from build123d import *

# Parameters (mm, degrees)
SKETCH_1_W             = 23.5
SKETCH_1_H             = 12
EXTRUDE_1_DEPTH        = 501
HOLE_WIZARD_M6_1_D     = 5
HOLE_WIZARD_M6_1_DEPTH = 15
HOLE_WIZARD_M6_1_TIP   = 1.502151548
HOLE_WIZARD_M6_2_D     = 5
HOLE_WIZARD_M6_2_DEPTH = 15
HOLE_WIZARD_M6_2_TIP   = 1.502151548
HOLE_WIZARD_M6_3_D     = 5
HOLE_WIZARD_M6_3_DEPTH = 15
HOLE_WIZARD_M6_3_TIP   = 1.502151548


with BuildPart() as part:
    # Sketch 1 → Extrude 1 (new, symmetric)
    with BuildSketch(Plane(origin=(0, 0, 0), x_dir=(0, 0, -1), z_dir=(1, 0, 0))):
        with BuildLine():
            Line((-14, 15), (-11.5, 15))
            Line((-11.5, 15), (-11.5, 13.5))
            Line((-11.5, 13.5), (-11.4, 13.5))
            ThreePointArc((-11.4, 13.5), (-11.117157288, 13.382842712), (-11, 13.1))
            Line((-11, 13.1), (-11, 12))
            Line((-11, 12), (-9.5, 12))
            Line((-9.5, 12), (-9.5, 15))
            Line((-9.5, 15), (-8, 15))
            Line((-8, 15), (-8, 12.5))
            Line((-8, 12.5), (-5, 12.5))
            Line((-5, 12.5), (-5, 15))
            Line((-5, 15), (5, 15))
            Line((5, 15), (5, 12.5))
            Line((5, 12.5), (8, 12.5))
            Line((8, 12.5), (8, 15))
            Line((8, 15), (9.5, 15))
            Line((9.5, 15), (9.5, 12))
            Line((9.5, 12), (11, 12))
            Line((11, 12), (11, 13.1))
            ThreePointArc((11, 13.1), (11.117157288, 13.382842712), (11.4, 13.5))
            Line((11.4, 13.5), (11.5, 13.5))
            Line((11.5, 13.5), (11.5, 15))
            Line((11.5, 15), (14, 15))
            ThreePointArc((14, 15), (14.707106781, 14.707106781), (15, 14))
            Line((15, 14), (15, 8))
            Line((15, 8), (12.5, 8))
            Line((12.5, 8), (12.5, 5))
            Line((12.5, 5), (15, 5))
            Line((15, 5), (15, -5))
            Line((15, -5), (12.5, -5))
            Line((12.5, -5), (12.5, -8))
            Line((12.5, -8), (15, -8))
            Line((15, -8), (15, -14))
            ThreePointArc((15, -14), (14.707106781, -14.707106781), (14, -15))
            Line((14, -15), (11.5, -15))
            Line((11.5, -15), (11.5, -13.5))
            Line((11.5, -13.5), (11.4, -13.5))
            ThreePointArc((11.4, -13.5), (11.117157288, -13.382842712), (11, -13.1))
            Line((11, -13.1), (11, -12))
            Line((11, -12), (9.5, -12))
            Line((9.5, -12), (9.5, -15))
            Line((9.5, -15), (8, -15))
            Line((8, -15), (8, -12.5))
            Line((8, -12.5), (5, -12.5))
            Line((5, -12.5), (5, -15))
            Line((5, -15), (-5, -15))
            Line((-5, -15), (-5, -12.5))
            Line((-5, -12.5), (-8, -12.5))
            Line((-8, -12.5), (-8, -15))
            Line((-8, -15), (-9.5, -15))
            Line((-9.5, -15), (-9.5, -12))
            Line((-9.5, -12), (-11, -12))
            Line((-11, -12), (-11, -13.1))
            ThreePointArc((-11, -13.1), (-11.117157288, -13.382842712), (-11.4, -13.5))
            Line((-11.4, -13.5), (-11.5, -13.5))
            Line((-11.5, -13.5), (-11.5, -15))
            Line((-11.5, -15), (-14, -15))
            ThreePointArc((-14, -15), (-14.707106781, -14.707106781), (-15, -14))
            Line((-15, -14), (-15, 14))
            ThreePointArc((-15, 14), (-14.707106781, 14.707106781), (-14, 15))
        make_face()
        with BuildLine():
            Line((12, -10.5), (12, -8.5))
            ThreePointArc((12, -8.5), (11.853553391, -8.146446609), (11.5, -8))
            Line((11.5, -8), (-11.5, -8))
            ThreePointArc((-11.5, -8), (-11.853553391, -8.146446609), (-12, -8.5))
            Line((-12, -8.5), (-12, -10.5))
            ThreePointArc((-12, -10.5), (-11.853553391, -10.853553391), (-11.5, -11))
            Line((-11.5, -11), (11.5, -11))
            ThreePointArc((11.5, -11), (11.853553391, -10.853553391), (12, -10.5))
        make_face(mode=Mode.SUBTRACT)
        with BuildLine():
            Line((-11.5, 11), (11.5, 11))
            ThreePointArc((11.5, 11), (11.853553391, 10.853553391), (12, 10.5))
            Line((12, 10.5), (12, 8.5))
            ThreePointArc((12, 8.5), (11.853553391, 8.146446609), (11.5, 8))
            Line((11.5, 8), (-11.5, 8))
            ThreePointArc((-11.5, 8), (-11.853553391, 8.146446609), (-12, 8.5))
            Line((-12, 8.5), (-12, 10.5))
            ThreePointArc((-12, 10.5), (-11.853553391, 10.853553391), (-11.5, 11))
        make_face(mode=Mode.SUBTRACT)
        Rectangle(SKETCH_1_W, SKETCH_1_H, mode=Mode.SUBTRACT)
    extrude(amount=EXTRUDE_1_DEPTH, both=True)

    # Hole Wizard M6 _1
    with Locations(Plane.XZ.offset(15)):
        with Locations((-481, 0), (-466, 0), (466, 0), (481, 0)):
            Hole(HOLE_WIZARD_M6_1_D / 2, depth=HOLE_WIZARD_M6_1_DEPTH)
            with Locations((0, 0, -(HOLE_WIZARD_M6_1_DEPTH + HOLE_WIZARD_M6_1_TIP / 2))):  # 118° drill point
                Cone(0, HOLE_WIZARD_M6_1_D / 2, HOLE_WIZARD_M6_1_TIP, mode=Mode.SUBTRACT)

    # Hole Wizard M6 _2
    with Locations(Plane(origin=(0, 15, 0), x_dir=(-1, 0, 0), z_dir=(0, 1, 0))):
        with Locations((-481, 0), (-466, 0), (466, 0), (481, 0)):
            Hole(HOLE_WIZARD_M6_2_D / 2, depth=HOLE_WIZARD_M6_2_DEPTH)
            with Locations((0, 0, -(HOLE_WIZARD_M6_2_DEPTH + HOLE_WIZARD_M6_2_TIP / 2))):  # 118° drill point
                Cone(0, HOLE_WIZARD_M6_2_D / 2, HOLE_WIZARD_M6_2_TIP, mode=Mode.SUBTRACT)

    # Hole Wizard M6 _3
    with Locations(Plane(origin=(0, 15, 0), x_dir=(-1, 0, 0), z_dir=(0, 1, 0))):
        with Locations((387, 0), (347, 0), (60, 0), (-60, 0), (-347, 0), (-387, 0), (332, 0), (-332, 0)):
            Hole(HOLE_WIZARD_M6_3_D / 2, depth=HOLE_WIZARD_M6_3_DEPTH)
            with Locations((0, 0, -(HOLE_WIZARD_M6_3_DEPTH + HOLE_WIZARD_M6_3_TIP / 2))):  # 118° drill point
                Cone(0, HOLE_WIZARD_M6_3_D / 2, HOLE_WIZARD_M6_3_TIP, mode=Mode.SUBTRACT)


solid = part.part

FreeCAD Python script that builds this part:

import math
import FreeCAD as App
import Part
import Sketcher

V = App.Vector
Q = App.Units.Quantity


def add_polygon(sketch, points):
    """Adds a closed chain of lines whose ends are joined by coincident constraints."""
    first, n = sketch.GeometryCount, len(points)
    for a, b in zip(points, points[1:] + points[:1]):
        sketch.addGeometry(Part.LineSegment(App.Vector(*a, 0), App.Vector(*b, 0)), False)
    for i in range(n):
        sketch.addConstraint(Sketcher.Constraint("Coincident", first + i, 2, first + (i + 1) % n, 1))

doc = App.newDocument("Part")
body = doc.addObject("PartDesign::Body", "Body")

# Sketch on YZ plane
sketch1 = body.newObject("Sketcher::SketchObject", "Sketch")
sketch1.AttachmentSupport = (doc.getObject("YZ_Plane"), [""])
sketch1.MapMode = "FlatFace"
sketch1.addGeometry(Part.LineSegment(V(15, 11.5, 0), V(15, 14, 0)), False)  # 0
sketch1.addGeometry(Part.ArcOfCircle(Part.Circle(V(14, 14, 0), V(0, 0, 1), 1), math.radians(0), math.radians(90)), False)  # 1
sketch1.addGeometry(Part.LineSegment(V(14, 15, 0), V(-14, 15, 0)), False)  # 2
sketch1.addGeometry(Part.ArcOfCircle(Part.Circle(V(-14, 14, 0), V(0, 0, 1), 1), math.radians(90), math.radians(180)), False)  # 3
sketch1.addGeometry(Part.LineSegment(V(-15, 14, 0), V(-15, 11.5, 0)), False)  # 4
sketch1.addGeometry(Part.LineSegment(V(-15, 11.5, 0), V(-13.5, 11.5, 0)), False)  # 5
sketch1.addGeometry(Part.LineSegment(V(-13.5, 11.5, 0), V(-13.5, 11.4, 0)), False)  # 6
sketch1.addGeometry(Part.ArcOfCircle(Part.Circle(V(-13.1, 11.4, 0), V(0, 0, 1), 0.4), math.radians(-180), math.radians(-90)), False)  # 7
sketch1.addGeometry(Part.LineSegment(V(-13.1, 11, 0), V(-12, 11, 0)), False)  # 8
sketch1.addGeometry(Part.LineSegment(V(-12, 11, 0), V(-12, 9.5, 0)), False)  # 9
sketch1.addGeometry(Part.LineSegment(V(-12, 9.5, 0), V(-15, 9.5, 0)), False)  # 10
sketch1.addGeometry(Part.LineSegment(V(-15, 9.5, 0), V(-15, 8, 0)), False)  # 11
sketch1.addGeometry(Part.LineSegment(V(-15, 8, 0), V(-12.5, 8, 0)), False)  # 12
sketch1.addGeometry(Part.LineSegment(V(-12.5, 8, 0), V(-12.5, 5, 0)), False)  # 13
sketch1.addGeometry(Part.LineSegment(V(-12.5, 5, 0), V(-15, 5, 0)), False)  # 14
sketch1.addGeometry(Part.LineSegment(V(-15, 5, 0), V(-15, -5, 0)), False)  # 15
sketch1.addGeometry(Part.LineSegment(V(-15, -5, 0), V(-12.5, -5, 0)), False)  # 16
sketch1.addGeometry(Part.LineSegment(V(-12.5, -5, 0), V(-12.5, -8, 0)), False)  # 17
sketch1.addGeometry(Part.LineSegment(V(-12.5, -8, 0), V(-15, -8, 0)), False)  # 18
sketch1.addGeometry(Part.LineSegment(V(-15, -8, 0), V(-15, -9.5, 0)), False)  # 19
sketch1.addGeometry(Part.LineSegment(V(-15, -9.5, 0), V(-12, -9.5, 0)), False)  # 20
sketch1.addGeometry(Part.LineSegment(V(-12, -9.5, 0), V(-12, -11, 0)), False)  # 21
sketch1.addGeometry(Part.LineSegment(V(-12, -11, 0), V(-13.1, -11, 0)), False)  # 22
sketch1.addGeometry(Part.ArcOfCircle(Part.Circle(V(-13.1, -11.4, 0), V(0, 0, 1), 0.4), math.radians(90), math.radians(180)), False)  # 23
sketch1.addGeometry(Part.LineSegment(V(-13.5, -11.4, 0), V(-13.5, -11.5, 0)), False)  # 24
sketch1.addGeometry(Part.LineSegment(V(-13.5, -11.5, 0), V(-15, -11.5, 0)), False)  # 25
sketch1.addGeometry(Part.LineSegment(V(-15, -11.5, 0), V(-15, -14, 0)), False)  # 26
sketch1.addGeometry(Part.ArcOfCircle(Part.Circle(V(-14, -14, 0), V(0, 0, 1), 1), math.radians(-180), math.radians(-90)), False)  # 27
sketch1.addGeometry(Part.LineSegment(V(-14, -15, 0), V(-8, -15, 0)), False)  # 28
sketch1.addGeometry(Part.LineSegment(V(-8, -15, 0), V(-8, -12.5, 0)), False)  # 29
sketch1.addGeometry(Part.LineSegment(V(-8, -12.5, 0), V(-5, -12.5, 0)), False)  # 30
sketch1.addGeometry(Part.LineSegment(V(-5, -12.5, 0), V(-5, -15, 0)), False)  # 31
sketch1.addGeometry(Part.LineSegment(V(-5, -15, 0), V(5, -15, 0)), False)  # 32
sketch1.addGeometry(Part.LineSegment(V(5, -15, 0), V(5, -12.5, 0)), False)  # 33
sketch1.addGeometry(Part.LineSegment(V(5, -12.5, 0), V(8, -12.5, 0)), False)  # 34
sketch1.addGeometry(Part.LineSegment(V(8, -12.5, 0), V(8, -15, 0)), False)  # 35
sketch1.addGeometry(Part.LineSegment(V(8, -15, 0), V(14, -15, 0)), False)  # 36
sketch1.addGeometry(Part.ArcOfCircle(Part.Circle(V(14, -14, 0), V(0, 0, 1), 1), math.radians(-90), math.radians(0)), False)  # 37
sketch1.addGeometry(Part.LineSegment(V(15, -14, 0), V(15, -11.5, 0)), False)  # 38
sketch1.addGeometry(Part.LineSegment(V(15, -11.5, 0), V(13.5, -11.5, 0)), False)  # 39
sketch1.addGeometry(Part.LineSegment(V(13.5, -11.5, 0), V(13.5, -11.4, 0)), False)  # 40
sketch1.addGeometry(Part.ArcOfCircle(Part.Circle(V(13.1, -11.4, 0), V(0, 0, 1), 0.4), math.radians(0), math.radians(90)), False)  # 41
sketch1.addGeometry(Part.LineSegment(V(13.1, -11, 0), V(12, -11, 0)), False)  # 42
sketch1.addGeometry(Part.LineSegment(V(12, -11, 0), V(12, -9.5, 0)), False)  # 43
sketch1.addGeometry(Part.LineSegment(V(12, -9.5, 0), V(15, -9.5, 0)), False)  # 44
sketch1.addGeometry(Part.LineSegment(V(15, -9.5, 0), V(15, -8, 0)), False)  # 45
sketch1.addGeometry(Part.LineSegment(V(15, -8, 0), V(12.5, -8, 0)), False)  # 46
sketch1.addGeometry(Part.LineSegment(V(12.5, -8, 0), V(12.5, -5, 0)), False)  # 47
sketch1.addGeometry(Part.LineSegment(V(12.5, -5, 0), V(15, -5, 0)), False)  # 48
sketch1.addGeometry(Part.LineSegment(V(15, -5, 0), V(15, 5, 0)), False)  # 49
sketch1.addGeometry(Part.LineSegment(V(15, 5, 0), V(12.5, 5, 0)), False)  # 50
sketch1.addGeometry(Part.LineSegment(V(12.5, 5, 0), V(12.5, 8, 0)), False)  # 51
sketch1.addGeometry(Part.LineSegment(V(12.5, 8, 0), V(15, 8, 0)), False)  # 52
sketch1.addGeometry(Part.LineSegment(V(15, 8, 0), V(15, 9.5, 0)), False)  # 53
sketch1.addGeometry(Part.LineSegment(V(15, 9.5, 0), V(12, 9.5, 0)), False)  # 54
sketch1.addGeometry(Part.LineSegment(V(12, 9.5, 0), V(12, 11, 0)), False)  # 55
sketch1.addGeometry(Part.LineSegment(V(12, 11, 0), V(13.1, 11, 0)), False)  # 56
sketch1.addGeometry(Part.ArcOfCircle(Part.Circle(V(13.1, 11.4, 0), V(0, 0, 1), 0.4), math.radians(-90), math.radians(0)), False)  # 57
sketch1.addGeometry(Part.LineSegment(V(13.5, 11.4, 0), V(13.5, 11.5, 0)), False)  # 58
sketch1.addGeometry(Part.LineSegment(V(13.5, 11.5, 0), V(15, 11.5, 0)), False)  # 59
sketch1.addGeometry(Part.ArcOfCircle(Part.Circle(V(-10.5, -11.5, 0), V(0, 0, 1), 0.5), math.radians(180), math.radians(270)), False)  # 60
sketch1.addGeometry(Part.LineSegment(V(-11, -11.5, 0), V(-11, 11.5, 0)), False)  # 61
sketch1.addGeometry(Part.ArcOfCircle(Part.Circle(V(-10.5, 11.5, 0), V(0, 0, 1), 0.5), math.radians(90), math.radians(180)), False)  # 62
sketch1.addGeometry(Part.LineSegment(V(-10.5, 12, 0), V(-8.5, 12, 0)), False)  # 63
sketch1.addGeometry(Part.ArcOfCircle(Part.Circle(V(-8.5, 11.5, 0), V(0, 0, 1), 0.5), math.radians(0), math.radians(90)), False)  # 64
sketch1.addGeometry(Part.LineSegment(V(-8, 11.5, 0), V(-8, -11.5, 0)), False)  # 65
sketch1.addGeometry(Part.ArcOfCircle(Part.Circle(V(-8.5, -11.5, 0), V(0, 0, 1), 0.5), math.radians(-90), math.radians(0)), False)  # 66
sketch1.addGeometry(Part.LineSegment(V(-8.5, -12, 0), V(-10.5, -12, 0)), False)  # 67
add_polygon(sketch1, [(-6, 11.75), (6, 11.75), (6, -11.75), (-6, -11.75)])  # lines 68-71
sketch1.addGeometry(Part.LineSegment(V(11, 11.5, 0), V(11, -11.5, 0)), False)  # 72
sketch1.addGeometry(Part.ArcOfCircle(Part.Circle(V(10.5, -11.5, 0), V(0, 0, 1), 0.5), math.radians(-90), math.radians(0)), False)  # 73
sketch1.addGeometry(Part.LineSegment(V(10.5, -12, 0), V(8.5, -12, 0)), False)  # 74
sketch1.addGeometry(Part.ArcOfCircle(Part.Circle(V(8.5, -11.5, 0), V(0, 0, 1), 0.5), math.radians(180), math.radians(270)), False)  # 75
sketch1.addGeometry(Part.LineSegment(V(8, -11.5, 0), V(8, 11.5, 0)), False)  # 76
sketch1.addGeometry(Part.ArcOfCircle(Part.Circle(V(8.5, 11.5, 0), V(0, 0, 1), 0.5), math.radians(90), math.radians(180)), False)  # 77
sketch1.addGeometry(Part.LineSegment(V(8.5, 12, 0), V(10.5, 12, 0)), False)  # 78
sketch1.addGeometry(Part.ArcOfCircle(Part.Circle(V(10.5, 11.5, 0), V(0, 0, 1), 0.5), math.radians(0), math.radians(90)), False)  # 79
sketch1.addConstraint([
    Sketcher.Constraint("Tangent", 0, 2, 1, 1),
    Sketcher.Constraint("Tangent", 1, 2, 2, 1),
    Sketcher.Constraint("Tangent", 2, 2, 3, 1),
    Sketcher.Constraint("Tangent", 3, 2, 4, 1),
    Sketcher.Constraint("Coincident", 4, 2, 5, 1),
    Sketcher.Constraint("Coincident", 5, 2, 6, 1),
    Sketcher.Constraint("Tangent", 6, 2, 7, 1),
    Sketcher.Constraint("Tangent", 7, 2, 8, 1),
    Sketcher.Constraint("Coincident", 8, 2, 9, 1),
    Sketcher.Constraint("Coincident", 9, 2, 10, 1),
    Sketcher.Constraint("Coincident", 10, 2, 11, 1),
    Sketcher.Constraint("Coincident", 11, 2, 12, 1),
    Sketcher.Constraint("Coincident", 12, 2, 13, 1),
    Sketcher.Constraint("Coincident", 13, 2, 14, 1),
    Sketcher.Constraint("Coincident", 14, 2, 15, 1),
    Sketcher.Constraint("Coincident", 15, 2, 16, 1),
    Sketcher.Constraint("Coincident", 16, 2, 17, 1),
    Sketcher.Constraint("Coincident", 17, 2, 18, 1),
    Sketcher.Constraint("Coincident", 18, 2, 19, 1),
    Sketcher.Constraint("Coincident", 19, 2, 20, 1),
    Sketcher.Constraint("Coincident", 20, 2, 21, 1),
    Sketcher.Constraint("Coincident", 21, 2, 22, 1),
    Sketcher.Constraint("Tangent", 22, 2, 23, 1),
    Sketcher.Constraint("Tangent", 23, 2, 24, 1),
    Sketcher.Constraint("Coincident", 24, 2, 25, 1),
    Sketcher.Constraint("Coincident", 25, 2, 26, 1),
    Sketcher.Constraint("Tangent", 26, 2, 27, 1),
    Sketcher.Constraint("Tangent", 27, 2, 28, 1),
    Sketcher.Constraint("Coincident", 28, 2, 29, 1),
    Sketcher.Constraint("Coincident", 29, 2, 30, 1),
    Sketcher.Constraint("Coincident", 30, 2, 31, 1),
    Sketcher.Constraint("Coincident", 31, 2, 32, 1),
    Sketcher.Constraint("Coincident", 32, 2, 33, 1),
    Sketcher.Constraint("Coincident", 33, 2, 34, 1),
    Sketcher.Constraint("Coincident", 34, 2, 35, 1),
    Sketcher.Constraint("Coincident", 35, 2, 36, 1),
    Sketcher.Constraint("Tangent", 36, 2, 37, 1),
    Sketcher.Constraint("Tangent", 37, 2, 38, 1),
    Sketcher.Constraint("Coincident", 38, 2, 39, 1),
    Sketcher.Constraint("Coincident", 39, 2, 40, 1),
    Sketcher.Constraint("Tangent", 40, 2, 41, 1),
    Sketcher.Constraint("Tangent", 41, 2, 42, 1),
    Sketcher.Constraint("Coincident", 42, 2, 43, 1),
    Sketcher.Constraint("Coincident", 43, 2, 44, 1),
    Sketcher.Constraint("Coincident", 44, 2, 45, 1),
    Sketcher.Constraint("Coincident", 45, 2, 46, 1),
    Sketcher.Constraint("Coincident", 46, 2, 47, 1),
    Sketcher.Constraint("Coincident", 47, 2, 48, 1),
    Sketcher.Constraint("Coincident", 48, 2, 49, 1),
    Sketcher.Constraint("Coincident", 49, 2, 50, 1),
    Sketcher.Constraint("Coincident", 50, 2, 51, 1),
    Sketcher.Constraint("Coincident", 51, 2, 52, 1),
    Sketcher.Constraint("Coincident", 52, 2, 53, 1),
    Sketcher.Constraint("Coincident", 53, 2, 54, 1),
    Sketcher.Constraint("Coincident", 54, 2, 55, 1),
    Sketcher.Constraint("Coincident", 55, 2, 56, 1),
    Sketcher.Constraint("Tangent", 56, 2, 57, 1),
    Sketcher.Constraint("Tangent", 57, 2, 58, 1),
    Sketcher.Constraint("Coincident", 58, 2, 59, 1),
    Sketcher.Constraint("Coincident", 59, 2, 0, 1),
    Sketcher.Constraint("Tangent", 60, 1, 61, 1),
    Sketcher.Constraint("Tangent", 61, 2, 62, 2),
    Sketcher.Constraint("Tangent", 62, 1, 63, 1),
    Sketcher.Constraint("Tangent", 63, 2, 64, 2),
    Sketcher.Constraint("Tangent", 64, 1, 65, 1),
    Sketcher.Constraint("Tangent", 65, 2, 66, 2),
    Sketcher.Constraint("Tangent", 66, 1, 67, 1),
    Sketcher.Constraint("Tangent", 67, 2, 60, 2),
    Sketcher.Constraint("Tangent", 72, 2, 73, 2),
    Sketcher.Constraint("Tangent", 73, 1, 74, 1),
    Sketcher.Constraint("Tangent", 74, 2, 75, 2),
    Sketcher.Constraint("Tangent", 75, 1, 76, 1),
    Sketcher.Constraint("Tangent", 76, 2, 77, 2),
    Sketcher.Constraint("Tangent", 77, 1, 78, 1),
    Sketcher.Constraint("Tangent", 78, 2, 79, 2),
    Sketcher.Constraint("Tangent", 79, 1, 72, 1),
    Sketcher.Constraint("Vertical", 0),
    Sketcher.Constraint("Horizontal", 2),
    Sketcher.Constraint("Vertical", 4),
    Sketcher.Constraint("Horizontal", 5),
    Sketcher.Constraint("Vertical", 6),
    Sketcher.Constraint("Horizontal", 8),
    Sketcher.Constraint("Vertical", 9),
    Sketcher.Constraint("Horizontal", 10),
    Sketcher.Constraint("Vertical", 11),
    Sketcher.Constraint("Horizontal", 12),
    Sketcher.Constraint("Vertical", 13),
    Sketcher.Constraint("Horizontal", 14),
    Sketcher.Constraint("Vertical", 15),
    Sketcher.Constraint("Horizontal", 16),
    Sketcher.Constraint("Vertical", 17),
    Sketcher.Constraint("Horizontal", 18),
    Sketcher.Constraint("Vertical", 19),
    Sketcher.Constraint("Horizontal", 20),
    Sketcher.Constraint("Vertical", 21),
    Sketcher.Constraint("Horizontal", 22),
    Sketcher.Constraint("Vertical", 24),
    Sketcher.Constraint("Horizontal", 25),
    Sketcher.Constraint("Vertical", 26),
    Sketcher.Constraint("Horizontal", 28),
    Sketcher.Constraint("Vertical", 29),
    Sketcher.Constraint("Horizontal", 30),
    Sketcher.Constraint("Vertical", 31),
    Sketcher.Constraint("Horizontal", 32),
    Sketcher.Constraint("Vertical", 33),
    Sketcher.Constraint("Horizontal", 34),
    Sketcher.Constraint("Vertical", 35),
    Sketcher.Constraint("Horizontal", 36),
    Sketcher.Constraint("Vertical", 38),
    Sketcher.Constraint("Horizontal", 39),
    Sketcher.Constraint("Vertical", 40),
    Sketcher.Constraint("Horizontal", 42),
    Sketcher.Constraint("Vertical", 43),
    Sketcher.Constraint("Horizontal", 44),
    Sketcher.Constraint("Vertical", 45),
    Sketcher.Constraint("Horizontal", 46),
    Sketcher.Constraint("Vertical", 47),
    Sketcher.Constraint("Horizontal", 48),
    Sketcher.Constraint("Vertical", 49),
    Sketcher.Constraint("Horizontal", 50),
    Sketcher.Constraint("Vertical", 51),
    Sketcher.Constraint("Horizontal", 52),
    Sketcher.Constraint("Vertical", 53),
    Sketcher.Constraint("Horizontal", 54),
    Sketcher.Constraint("Vertical", 55),
    Sketcher.Constraint("Horizontal", 56),
    Sketcher.Constraint("Vertical", 58),
    Sketcher.Constraint("Horizontal", 59),
    Sketcher.Constraint("Vertical", 61),
    Sketcher.Constraint("Horizontal", 63),
    Sketcher.Constraint("Vertical", 65),
    Sketcher.Constraint("Horizontal", 67),
    Sketcher.Constraint("Horizontal", 68),
    Sketcher.Constraint("Vertical", 69),
    Sketcher.Constraint("Horizontal", 70),
    Sketcher.Constraint("Vertical", 71),
    Sketcher.Constraint("Vertical", 72),
    Sketcher.Constraint("Horizontal", 74),
    Sketcher.Constraint("Vertical", 76),
    Sketcher.Constraint("Horizontal", 78),
    Sketcher.Constraint("Equal", 1, 3),
    Sketcher.Constraint("Equal", 7, 23),
    Sketcher.Constraint("Equal", 3, 27),
    Sketcher.Constraint("Equal", 27, 37),
    Sketcher.Constraint("Equal", 23, 41),
    Sketcher.Constraint("Equal", 41, 57),
    Sketcher.Constraint("Equal", 60, 62),
    Sketcher.Constraint("Equal", 62, 64),
    Sketcher.Constraint("Equal", 64, 66),
    Sketcher.Constraint("Equal", 66, 73),
    Sketcher.Constraint("Equal", 73, 75),
    Sketcher.Constraint("Equal", 75, 77),
    Sketcher.Constraint("Equal", 77, 79),
    Sketcher.Constraint("Symmetric", 1, 3, 27, 3, -1, 1),
    Sketcher.Constraint("Symmetric", 3, 3, 37, 3, -1, 1),
    Sketcher.Constraint("Symmetric", 7, 3, 41, 3, -1, 1),
    Sketcher.Constraint("Symmetric", 23, 3, 57, 3, -1, 1),
    Sketcher.Constraint("Symmetric", 62, 3, 73, 3, -1, 1),
    Sketcher.Constraint("Symmetric", 66, 3, 77, 3, -1, 1),
    Sketcher.Constraint("Symmetric", 9, 2, 43, 2, -1, 1),
    Sketcher.Constraint("Symmetric", 11, 2, 45, 2, -1, 1),
    Sketcher.Constraint("Symmetric", 13, 2, 47, 2, -1, 1),
    Sketcher.Constraint("Symmetric", 15, 2, 49, 2, -1, 1),
    Sketcher.Constraint("Symmetric", 17, 2, 51, 2, -1, 1),
    Sketcher.Constraint("Symmetric", 19, 2, 53, 2, -1, 1),
    Sketcher.Constraint("Symmetric", 68, 2, 70, 2, -1, 1),
    Sketcher.Constraint("Symmetric", 23, 3, 41, 3, -2),
    Sketcher.Constraint("Symmetric", 30, 2, 33, 2, -2),
    Sketcher.Constraint("Symmetric", 25, 2, 38, 2, -2),
    Sketcher.Constraint("Symmetric", 20, 2, 43, 2, -2),
    Sketcher.Constraint("Symmetric", 18, 2, 45, 2, -2),
    Sketcher.Constraint("Symmetric", 16, 2, 47, 2, -2),
    Sketcher.Constraint("Horizontal", 66, 3, 73, 3),
    Sketcher.Constraint("Horizontal", 79, 3, 4, 2),
    Sketcher.Constraint("Horizontal", 75, 3, 24, 2),
    Sketcher.Constraint("Horizontal", 28, 2, 31, 2),
    Sketcher.Constraint("Horizontal", 5, 2, 58, 2),
    Sketcher.Constraint("Vertical", 4, 2, 10, 2),
    Sketcher.Constraint("Vertical", 11, 2, 14, 2),
    Sketcher.Constraint("Vertical", 43, 2, 54, 2),
    Sketcher.Constraint("Vertical", 29, 2, 64, 1),
    Sketcher.Constraint("Vertical", 35, 2, 75, 1),
    Sketcher.Constraint("Equal", 20, 30),
    Sketcher.Constraint("Equal", 52, 0),
    Sketcher.Constraint("Equal", 59, 9),
    Sketcher.Constraint("Equal", 9, 11),
    Sketcher.Constraint("Equal", 54, 13),
    Sketcher.Constraint("Equal", 32, 15),
    Sketcher.Constraint("Equal", 26, 29),
    Sketcher.Constraint("Radius", 1, Q("1 mm")),
    Sketcher.Constraint("Radius", 7, Q("0.4 mm")),
    Sketcher.Constraint("Radius", 60, Q("0.5 mm")),
    Sketcher.Constraint("DistanceX", 2, 2, 2, 1, Q("28 mm")),
    Sketcher.Constraint("DistanceX", 10, 2, 10, 1, Q("3 mm")),
    Sketcher.Constraint("DistanceX", 28, 1, 28, 2, Q("6 mm")),
    Sketcher.Constraint("DistanceX", 63, 1, 63, 2, Q("2 mm")),
    Sketcher.Constraint("DistanceX", 68, 1, 68, 2, Q("12 mm")),
    Sketcher.Constraint("DistanceY", 61, 1, 61, 2, Q("23 mm")),
    Sketcher.Constraint("DistanceX", 5, 1, 5, 2, Q("1.5 mm")),
    Sketcher.Constraint("DistanceX", 12, 1, 12, 2, Q("2.5 mm")),
    Sketcher.Constraint("DistanceY", 69, 2, 69, 1, Q("23.5 mm")),
])
pad1 = body.newObject("PartDesign::Pad", "Pad")
pad1.Profile = sketch1
pad1.Length = 1002
pad1.Midplane = True

# Sketch on XZ plane
sketch2 = body.newObject("Sketcher::SketchObject", "Sketch001")
sketch2.AttachmentSupport = (doc.getObject("XZ_Plane"), [""])
sketch2.MapMode = "FlatFace"
sketch2.AttachmentOffset = App.Placement(V(0, 0, 15), App.Rotation())
sketch2.addGeometry([
    Part.Circle(V(-481, 0, 0), V(0, 0, 1), 2.5),
    Part.Circle(V(-466, 0, 0), V(0, 0, 1), 2.5),
    Part.Circle(V(466, 0, 0), V(0, 0, 1), 2.5),
    Part.Circle(V(481, 0, 0), V(0, 0, 1), 2.5),
], False)
sketch2.addConstraint([
    Sketcher.Constraint("Equal", 0, 1),
    Sketcher.Constraint("Equal", 1, 2),
    Sketcher.Constraint("Equal", 2, 3),
    Sketcher.Constraint("Symmetric", 1, 3, 2, 3, -1, 1),
    Sketcher.Constraint("Symmetric", 0, 3, 3, 3, -1, 1),
    Sketcher.Constraint("PointOnObject", 0, 3, -1),
    Sketcher.Constraint("PointOnObject", 1, 3, -1),
    Sketcher.Constraint("Diameter", 0, Q("5 mm")),
    Sketcher.Constraint("DistanceX", 0, 3, -1, 1, Q("481 mm")),
    Sketcher.Constraint("DistanceX", 1, 3, -1, 1, Q("466 mm")),
])
doc.recompute()
hole = body.newObject("PartDesign::Hole", "Hole")
hole.Profile = sketch2
hole.ThreadType = "None"
hole.Diameter = 5
hole.DepthType = "Dimension"
hole.Depth = 15
hole.DrillPoint = "Angled"
hole.DrillPointAngle = 118

# Sketch on XZ plane
sketch3 = body.newObject("Sketcher::SketchObject", "Sketch002")
sketch3.AttachmentSupport = (doc.getObject("XZ_Plane"), [""])
sketch3.MapMode = "FlatFace"
sketch3.AttachmentOffset = App.Placement(V(0, 0, -15), App.Rotation())
sketch3.addGeometry([
    Part.Circle(V(481, 0, 0), V(0, 0, 1), 2.5),
    Part.Circle(V(466, 0, 0), V(0, 0, 1), 2.5),
    Part.Circle(V(-466, 0, 0), V(0, 0, 1), 2.5),
    Part.Circle(V(-481, 0, 0), V(0, 0, 1), 2.5),
], False)
sketch3.addConstraint([
    Sketcher.Constraint("Equal", 0, 1),
    Sketcher.Constraint("Equal", 1, 2),
    Sketcher.Constraint("Equal", 2, 3),
    Sketcher.Constraint("Symmetric", 1, 3, 2, 3, -1, 1),
    Sketcher.Constraint("Symmetric", 0, 3, 3, 3, -1, 1),
    Sketcher.Constraint("PointOnObject", 0, 3, -1),
    Sketcher.Constraint("PointOnObject", 1, 3, -1),
    Sketcher.Constraint("Diameter", 0, Q("5 mm")),
    Sketcher.Constraint("DistanceX", -1, 1, 0, 3, Q("481 mm")),
    Sketcher.Constraint("DistanceX", -1, 1, 1, 3, Q("466 mm")),
])
doc.recompute()
hole2 = body.newObject("PartDesign::Hole", "Hole001")
hole2.Profile = sketch3
hole2.ThreadType = "None"
hole2.Diameter = 5
hole2.DepthType = "Dimension"
hole2.Depth = 15
hole2.DrillPoint = "Angled"
hole2.DrillPointAngle = 118
hole2.Reversed = True

# Sketch on XZ plane
sketch4 = body.newObject("Sketcher::SketchObject", "Sketch003")
sketch4.AttachmentSupport = (doc.getObject("XZ_Plane"), [""])
sketch4.MapMode = "FlatFace"
sketch4.AttachmentOffset = App.Placement(V(0, 0, -15), App.Rotation())
sketch4.addGeometry([
    Part.Circle(V(-387, 0, 0), V(0, 0, 1), 2.5),  # 0
    Part.Circle(V(-347, 0, 0), V(0, 0, 1), 2.5),  # 1
    Part.Circle(V(-60, 0, 0), V(0, 0, 1), 2.5),  # 2
    Part.Circle(V(60, 0, 0), V(0, 0, 1), 2.5),  # 3
    Part.Circle(V(347, 0, 0), V(0, 0, 1), 2.5),  # 4
    Part.Circle(V(387, 0, 0), V(0, 0, 1), 2.5),  # 5
    Part.Circle(V(-332, 0, 0), V(0, 0, 1), 2.5),  # 6
    Part.Circle(V(332, 0, 0), V(0, 0, 1), 2.5),  # 7
], False)
sketch4.addConstraint([
    Sketcher.Constraint("Equal", 0, 1),
    Sketcher.Constraint("Equal", 1, 2),
    Sketcher.Constraint("Equal", 2, 3),
    Sketcher.Constraint("Equal", 3, 4),
    Sketcher.Constraint("Equal", 4, 5),
    Sketcher.Constraint("Equal", 5, 6),
    Sketcher.Constraint("Equal", 6, 7),
    Sketcher.Constraint("Symmetric", 2, 3, 3, 3, -1, 1),
    Sketcher.Constraint("Symmetric", 1, 3, 4, 3, -1, 1),
    Sketcher.Constraint("Symmetric", 0, 3, 5, 3, -1, 1),
    Sketcher.Constraint("Symmetric", 6, 3, 7, 3, -1, 1),
    Sketcher.Constraint("PointOnObject", 0, 3, -1),
    Sketcher.Constraint("PointOnObject", 1, 3, -1),
    Sketcher.Constraint("PointOnObject", 2, 3, -1),
    Sketcher.Constraint("PointOnObject", 6, 3, -1),
    Sketcher.Constraint("Diameter", 0, Q("5 mm")),
    Sketcher.Constraint("DistanceX", 0, 3, -1, 1, Q("387 mm")),
    Sketcher.Constraint("DistanceX", 1, 3, -1, 1, Q("347 mm")),
    Sketcher.Constraint("DistanceX", 2, 3, -1, 1, Q("60 mm")),
    Sketcher.Constraint("DistanceX", 6, 3, -1, 1, Q("332 mm")),
])
doc.recompute()
hole3 = body.newObject("PartDesign::Hole", "Hole002")
hole3.Profile = sketch4
hole3.ThreadType = "None"
hole3.Diameter = 5
hole3.DepthType = "Dimension"
hole3.Depth = 15
hole3.DrillPoint = "Angled"
hole3.DrillPointAngle = 118
hole3.Reversed = True

doc.recompute()
